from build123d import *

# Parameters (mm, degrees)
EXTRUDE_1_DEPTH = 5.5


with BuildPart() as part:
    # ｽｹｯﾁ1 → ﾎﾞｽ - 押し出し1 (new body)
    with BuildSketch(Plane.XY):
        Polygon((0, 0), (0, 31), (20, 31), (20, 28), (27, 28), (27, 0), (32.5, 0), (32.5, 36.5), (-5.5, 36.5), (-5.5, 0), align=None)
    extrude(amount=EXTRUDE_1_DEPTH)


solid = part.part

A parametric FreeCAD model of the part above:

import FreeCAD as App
import Part
import Sketcher

V = App.Vector
Q = App.Units.Quantity


def add_polygon(sketch, points):
    """Adds a closed chain of lines whose ends are joined by coincident constraints."""
    first, n = sketch.GeometryCount, len(points)
    for a, b in zip(points, points[1:] + points[:1]):
        sketch.addGeometry(Part.LineSegment(App.Vector(*a, 0), App.Vector(*b, 0)), False)
    for i in range(n):
        sketch.addConstraint(Sketcher.Constraint("Coincident", first + i, 2, first + (i + 1) % n, 1))

doc = App.newDocument("Part")
body = doc.addObject("PartDesign::Body", "Body")

# Sketch on XY plane
sketch1 = body.newObject("Sketcher::SketchObject", "Sketch")
sketch1.AttachmentSupport = (doc.getObject("XY_Plane"), [""])
sketch1.MapMode = "FlatFace"
add_polygon(sketch1, [(0, 0), (0, 31), (20, 31), (20, 28), (27, 28), (27, 0), (32.5, 0), (32.5, 36.5), (-5.5, 36.5), (-5.5, 0)])  # lines 0-9
sketch1.addConstraint(Sketcher.Constraint("Vertical", 0))
sketch1.addConstraint(Sketcher.Constraint("Horizontal", 1))
sketch1.addConstraint(Sketcher.Constraint("Vertical", 2))
sketch1.addConstraint(Sketcher.Constraint("Horizontal", 3))
sketch1.addConstraint(Sketcher.Constraint("Vertical", 4))
sketch1.addConstraint(Sketcher.Constraint("Horizontal", 5))
sketch1.addConstraint(Sketcher.Constraint("Vertical", 6))
sketch1.addConstraint(Sketcher.Constraint("Horizontal", 7))
sketch1.addConstraint(Sketcher.Constraint("Vertical", 8))
sketch1.addConstraint(Sketcher.Constraint("Horizontal", 9))
sketch1.addConstraint(Sketcher.Constraint("Coincident", 9, 2, -1, 1))
sketch1.addConstraint(Sketcher.Constraint("PointOnObject", 4, 2, -1))
sketch1.addConstraint(Sketcher.Constraint("Equal", 5, 9))
sketch1.addConstraint(Sketcher.Constraint("DistanceX", 1, 1, 1, 2, Q("20 mm")))
sketch1.addConstraint(Sketcher.Constraint("DistanceX", 3, 1, 3, 2, Q("7 mm")))
sketch1.addConstraint(Sketcher.Constraint("DistanceX", 7, 2, 7, 1, Q("38 mm")))
sketch1.addConstraint(Sketcher.Constraint("DistanceY", 0, 1, 0, 2, Q("31 mm")))
sketch1.addConstraint(Sketcher.Constraint("DistanceY", 2, 2, 2, 1, Q("3 mm")))
sketch1.addConstraint(Sketcher.Constraint("DistanceY", 6, 1, 6, 2, Q("36.5 mm")))
pad1 = body.newObject("PartDesign::Pad", "Pad")
pad1.Profile = sketch1
pad1.Length = 5.5

doc.recompute()
